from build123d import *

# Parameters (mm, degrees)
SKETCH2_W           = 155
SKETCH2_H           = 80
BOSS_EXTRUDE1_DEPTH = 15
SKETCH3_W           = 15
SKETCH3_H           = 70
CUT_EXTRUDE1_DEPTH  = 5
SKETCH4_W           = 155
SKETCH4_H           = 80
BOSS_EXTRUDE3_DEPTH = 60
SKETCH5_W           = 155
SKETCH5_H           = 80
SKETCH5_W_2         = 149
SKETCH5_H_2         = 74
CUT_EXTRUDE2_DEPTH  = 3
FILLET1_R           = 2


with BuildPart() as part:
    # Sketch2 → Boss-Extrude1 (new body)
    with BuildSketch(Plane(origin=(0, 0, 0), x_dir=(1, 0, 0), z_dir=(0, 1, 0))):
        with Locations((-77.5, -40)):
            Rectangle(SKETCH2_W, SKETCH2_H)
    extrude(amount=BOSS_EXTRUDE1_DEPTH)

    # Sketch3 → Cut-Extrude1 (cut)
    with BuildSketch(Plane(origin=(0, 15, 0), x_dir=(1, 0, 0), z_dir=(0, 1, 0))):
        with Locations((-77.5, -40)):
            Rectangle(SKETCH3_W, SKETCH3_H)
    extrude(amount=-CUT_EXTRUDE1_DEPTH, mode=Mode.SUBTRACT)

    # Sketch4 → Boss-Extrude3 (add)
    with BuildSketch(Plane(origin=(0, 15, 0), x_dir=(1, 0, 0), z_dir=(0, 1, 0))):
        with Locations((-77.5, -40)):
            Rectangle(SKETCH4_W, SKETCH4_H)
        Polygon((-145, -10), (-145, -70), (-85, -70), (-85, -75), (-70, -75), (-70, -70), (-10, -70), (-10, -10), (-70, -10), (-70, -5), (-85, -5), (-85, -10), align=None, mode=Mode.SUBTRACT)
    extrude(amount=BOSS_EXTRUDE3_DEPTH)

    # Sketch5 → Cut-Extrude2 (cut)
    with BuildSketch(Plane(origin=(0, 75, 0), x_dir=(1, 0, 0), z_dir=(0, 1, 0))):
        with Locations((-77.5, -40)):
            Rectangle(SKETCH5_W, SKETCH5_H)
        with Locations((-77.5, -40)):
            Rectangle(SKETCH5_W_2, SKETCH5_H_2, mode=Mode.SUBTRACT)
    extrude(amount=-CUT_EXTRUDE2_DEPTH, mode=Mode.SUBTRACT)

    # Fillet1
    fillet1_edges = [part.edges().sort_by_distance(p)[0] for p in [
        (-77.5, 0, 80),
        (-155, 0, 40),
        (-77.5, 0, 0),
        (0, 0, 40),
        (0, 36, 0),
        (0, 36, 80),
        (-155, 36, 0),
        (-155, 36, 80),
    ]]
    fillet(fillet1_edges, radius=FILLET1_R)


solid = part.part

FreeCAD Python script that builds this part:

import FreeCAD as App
import Part
import Sketcher
Q = App.Units.Quantity


def edges_at(feature, points):
    """Names of the edges that pass closest to the given points."""
    edges = feature.Shape.Edges
    near = lambda p: min(range(len(edges)), key=lambda i: edges[i].distToShape(Part.Vertex(*p))[0])
    return sorted({f"Edge{near(p) + 1}" for p in points})

doc = App.newDocument("Part")
params = doc.addObject("Spreadsheet::Sheet", "Params")
for row, (alias, value) in enumerate([
    ("sketch1_width", "155 mm"),
    ("sketch1_height", "80 mm"),
    ("pad1_length", "15 mm"),
    ("sketch2_width", "15 mm"),
    ("sketch2_height", "70 mm"),
    ("pocket1_length", "5 mm"),
    ("sketch3_width", "155 mm"),
    ("sketch3_width2", "60 mm"),
    ("sketch3_width3", "15 mm"),
    ("sketch3_height", "80 mm"),
    ("sketch3_height2", "5 mm"),
    ("pad2_length", "60 mm"),
    ("sketch4_width", "155 mm"),
    ("sketch4_width2", "149 mm"),
    ("sketch4_height", "80 mm"),
    ("sketch4_height2", "74 mm"),
    ("pocket2_length", "3 mm"),
    ("fillet_radius", "2 mm"),
], start=1):
    params.set(f"A{row}", alias)
    params.set(f"B{row}", "=" + value)
    params.setAlias(f"B{row}", alias)

body = doc.addObject("PartDesign::Body", "Body")

# Sketch on XZ plane
sketch1 = body.newObject("Sketcher::SketchObject", "Sketch")
sketch1.AttachmentSupport = (doc.getObject("XZ_Plane"), [""])
sketch1.MapMode = "FlatFace"
sketch1.addGeometry(Part.LineSegment(App.Vector(-155, 0, 0), App.Vector(-155, 80, 0)), False)
sketch1.addGeometry(Part.LineSegment(App.Vector(-155, 80, 0), App.Vector(0, 80, 0)), False)
sketch1.addGeometry(Part.LineSegment(App.Vector(0, 80, 0), App.Vector(0, 0, 0)), False)
sketch1.addGeometry(Part.LineSegment(App.Vector(0, 0, 0), App.Vector(-155, 0, 0)), False)
sketch1.addConstraint(Sketcher.Constraint("Coincident", 0, 2, 1, 1))
sketch1.addConstraint(Sketcher.Constraint("Coincident", 1, 2, 2, 1))
sketch1.addConstraint(Sketcher.Constraint("Coincident", 2, 2, 3, 1))
sketch1.addConstraint(Sketcher.Constraint("Coincident", 3, 2, 0, 1))
sketch1.addConstraint(Sketcher.Constraint("Vertical", 0))
sketch1.addConstraint(Sketcher.Constraint("Horizontal", 1))
sketch1.addConstraint(Sketcher.Constraint("Vertical", 2))
sketch1.addConstraint(Sketcher.Constraint("Horizontal", 3))
sketch1.addConstraint(Sketcher.Constraint("Coincident", 2, 2, -1, 1))
sketch1.addConstraint(Sketcher.Constraint("DistanceX", 1, 1, 1, 2, Q("155 mm")))
sketch1.addConstraint(Sketcher.Constraint("DistanceY", 0, 1, 0, 2, Q("80 mm")))
sketch1.setExpression("Constraints[9]", "Params.sketch1_width")
sketch1.setExpression("Constraints[10]", "Params.sketch1_height")
pad1 = body.newObject("PartDesign::Pad", "Pad")
pad1.Profile = sketch1
pad1.setExpression("Length", "Params.pad1_length")
pad1.Reversed = True

# Sketch on XZ plane
sketch2 = body.newObject("Sketcher::SketchObject", "Sketch001")
sketch2.AttachmentSupport = (doc.getObject("XZ_Plane"), [""])
sketch2.MapMode = "FlatFace"
sketch2.AttachmentOffset = App.Placement(App.Vector(0, 0, -15), App.Rotation())
sketch2.addGeometry(Part.LineSegment(App.Vector(-85, 5, 0), App.Vector(-85, 75, 0)), False)
sketch2.addGeometry(Part.LineSegment(App.Vector(-85, 75, 0), App.Vector(-70, 75, 0)), False)
sketch2.addGeometry(Part.LineSegment(App.Vector(-70, 75, 0), App.Vector(-70, 5, 0)), False)
sketch2.addGeometry(Part.LineSegment(App.Vector(-70, 5, 0), App.Vector(-85, 5, 0)), False)
sketch2.addConstraint(Sketcher.Constraint("Coincident", 0, 2, 1, 1))
sketch2.addConstraint(Sketcher.Constraint("Coincident", 1, 2, 2, 1))
sketch2.addConstraint(Sketcher.Constraint("Coincident", 2, 2, 3, 1))
sketch2.addConstraint(Sketcher.Constraint("Coincident", 3, 2, 0, 1))
sketch2.addConstraint(Sketcher.Constraint("Vertical", 0))
sketch2.addConstraint(Sketcher.Constraint("Horizontal", 1))
sketch2.addConstraint(Sketcher.Constraint("Vertical", 2))
sketch2.addConstraint(Sketcher.Constraint("Horizontal", 3))
sketch2.addConstraint(Sketcher.Constraint("DistanceX", 1, 1, 1, 2, Q("15 mm")))
sketch2.addConstraint(Sketcher.Constraint("DistanceY", 0, 1, 0, 2, Q("70 mm")))
sketch2.addConstraint(Sketcher.Constraint("DistanceX", 0, 2, -1, 1, Q("85 mm")))
sketch2.addConstraint(Sketcher.Constraint("DistanceY", -1, 1, 0, 2, Q("75 mm")))
sketch2.setExpression("Constraints[8]", "Params.sketch2_width")
sketch2.setExpression("Constraints[9]", "Params.sketch2_height")
pocket1 = body.newObject("PartDesign::Pocket", "Pocket")
pocket1.Profile = sketch2
pocket1.setExpression("Length", "Params.pocket1_length")
pocket1.Reversed = True

# Sketch on XZ plane
sketch3 = body.newObject("Sketcher::SketchObject", "Sketch002")
sketch3.AttachmentSupport = (doc.getObject("XZ_Plane"), [""])
sketch3.MapMode = "FlatFace"
sketch3.AttachmentOffset = App.Placement(App.Vector(0, 0, -15), App.Rotation())
sketch3.addGeometry(Part.LineSegment(App.Vector(-155, 0, 0), App.Vector(-155, 80, 0)), False)
sketch3.addGeometry(Part.LineSegment(App.Vector(-155, 80, 0), App.Vector(0, 80, 0)), False)
sketch3.addGeometry(Part.LineSegment(App.Vector(0, 80, 0), App.Vector(0, 0, 0)), False)
sketch3.addGeometry(Part.LineSegment(App.Vector(0, 0, 0), App.Vector(-155, 0, 0)), False)
sketch3.addGeometry(Part.LineSegment(App.Vector(-145, 70, 0), App.Vector(-145, 10, 0)), False)
sketch3.addGeometry(Part.LineSegment(App.Vector(-145, 10, 0), App.Vector(-85, 10, 0)), False)
sketch3.addGeometry(Part.LineSegment(App.Vector(-85, 10, 0), App.Vector(-85, 5, 0)), False)
sketch3.addGeometry(Part.LineSegment(App.Vector(-85, 5, 0), App.Vector(-70, 5, 0)), False)
sketch3.addGeometry(Part.LineSegment(App.Vector(-70, 5, 0), App.Vector(-70, 10, 0)), False)
sketch3.addGeometry(Part.LineSegment(App.Vector(-70, 10, 0), App.Vector(-10, 10, 0)), False)
sketch3.addGeometry(Part.LineSegment(App.Vector(-10, 10, 0), App.Vector(-10, 70, 0)), False)
sketch3.addGeometry(Part.LineSegment(App.Vector(-10, 70, 0), App.Vector(-70, 70, 0)), False)
sketch3.addGeometry(Part.LineSegment(App.Vector(-70, 70, 0), App.Vector(-70, 75, 0)), False)
sketch3.addGeometry(Part.LineSegment(App.Vector(-70, 75, 0), App.Vector(-85, 75, 0)), False)
sketch3.addGeometry(Part.LineSegment(App.Vector(-85, 75, 0), App.Vector(-85, 70, 0)), False)
sketch3.addGeometry(Part.LineSegment(App.Vector(-85, 70, 0), App.Vector(-145, 70, 0)), False)
sketch3.addConstraint(Sketcher.Constraint("Coincident", 0, 2, 1, 1))
sketch3.addConstraint(Sketcher.Constraint("Coincident", 1, 2, 2, 1))
sketch3.addConstraint(Sketcher.Constraint("Coincident", 2, 2, 3, 1))
sketch3.addConstraint(Sketcher.Constraint("Coincident", 3, 2, 0, 1))
sketch3.addConstraint(Sketcher.Constraint("Coincident", 4, 2, 5, 1))
sketch3.addConstraint(Sketcher.Constraint("Coincident", 5, 2, 6, 1))
sketch3.addConstraint(Sketcher.Constraint("Coincident", 6, 2, 7, 1))
sketch3.addConstraint(Sketcher.Constraint("Coincident", 7, 2, 8, 1))
sketch3.addConstraint(Sketcher.Constraint("Coincident", 8, 2, 9, 1))
sketch3.addConstraint(Sketcher.Constraint("Coincident", 9, 2, 10, 1))
sketch3.addConstraint(Sketcher.Constraint("Coincident", 10, 2, 11, 1))
sketch3.addConstraint(Sketcher.Constraint("Coincident", 11, 2, 12, 1))
sketch3.addConstraint(Sketcher.Constraint("Coincident", 12, 2, 13, 1))
sketch3.addConstraint(Sketcher.Constraint("Coincident", 13, 2, 14, 1))
sketch3.addConstraint(Sketcher.Constraint("Coincident", 14, 2, 15, 1))
sketch3.addConstraint(Sketcher.Constraint("Coincident", 15, 2, 4, 1))
sketch3.addConstraint(Sketcher.Constraint("Vertical", 0))
sketch3.addConstraint(Sketcher.Constraint("Horizontal", 1))
sketch3.addConstraint(Sketcher.Constraint("Vertical", 2))
sketch3.addConstraint(Sketcher.Constraint("Horizontal", 3))
sketch3.addConstraint(Sketcher.Constraint("Vertical", 4))
sketch3.addConstraint(Sketcher.Constraint("Horizontal", 5))
sketch3.addConstraint(Sketcher.Constraint("Vertical", 6))
sketch3.addConstraint(Sketcher.Constraint("Horizontal", 7))
sketch3.addConstraint(Sketcher.Constraint("Vertical", 8))
sketch3.addConstraint(Sketcher.Constraint("Horizontal", 9))
sketch3.addConstraint(Sketcher.Constraint("Vertical", 10))
sketch3.addConstraint(Sketcher.Constraint("Horizontal", 11))
sketch3.addConstraint(Sketcher.Constraint("Vertical", 12))
sketch3.addConstraint(Sketcher.Constraint("Horizontal", 13))
sketch3.addConstraint(Sketcher.Constraint("Vertical", 14))
sketch3.addConstraint(Sketcher.Constraint("Horizontal", 15))
sketch3.addConstraint(Sketcher.Constraint("Coincident", 2, 2, -1, 1))
sketch3.addConstraint(Sketcher.Constraint("Horizontal", 5, 2, 8, 2))
sketch3.addConstraint(Sketcher.Constraint("Horizontal", 11, 2, 14, 2))
sketch3.addConstraint(Sketcher.Constraint("Vertical", 8, 2, 11, 2))
sketch3.addConstraint(Sketcher.Constraint("Vertical", 6, 2, 13, 2))
sketch3.addConstraint(Sketcher.Constraint("Equal", 5, 9))
sketch3.addConstraint(Sketcher.Constraint("Equal", 15, 4))
sketch3.addConstraint(Sketcher.Constraint("Equal", 8, 12))
sketch3.addConstraint(Sketcher.Constraint("DistanceX", 1, 1, 1, 2, Q("155 mm")))
sketch3.addConstraint(Sketcher.Constraint("DistanceX", 5, 1, 5, 2, Q("60 mm")))
sketch3.addConstraint(Sketcher.Constraint("DistanceX", 7, 1, 7, 2, Q("15 mm")))
sketch3.addConstraint(Sketcher.Constraint("DistanceY", 0, 1, 0, 2, Q("80 mm")))
sketch3.addConstraint(Sketcher.Constraint("DistanceY", 6, 2, 6, 1, Q("5 mm")))
sketch3.addConstraint(Sketcher.Constraint("DistanceX", 4, 2, -1, 1, Q("145 mm")))
sketch3.addConstraint(Sketcher.Constraint("DistanceY", -1, 1, 4, 2, Q("10 mm")))
sketch3.setExpression("Constraints[40]", "Params.sketch3_width")
sketch3.setExpression("Constraints[41]", "Params.sketch3_width2")
sketch3.setExpression("Constraints[42]", "Params.sketch3_width3")
sketch3.setExpression("Constraints[43]", "Params.sketch3_height")
sketch3.setExpression("Constraints[44]", "Params.sketch3_height2")
pad2 = body.newObject("PartDesign::Pad", "Pad001")
pad2.Profile = sketch3
pad2.setExpression("Length", "Params.pad2_length")
pad2.Reversed = True

# Sketch on XZ plane
sketch4 = body.newObject("Sketcher::SketchObject", "Sketch003")
sketch4.AttachmentSupport = (doc.getObject("XZ_Plane"), [""])
sketch4.MapMode = "FlatFace"
sketch4.AttachmentOffset = App.Placement(App.Vector(0, 0, -75), App.Rotation())
sketch4.addGeometry(Part.LineSegment(App.Vector(-155, 0, 0), App.Vector(-155, 80, 0)), False)
sketch4.addGeometry(Part.LineSegment(App.Vector(-155, 80, 0), App.Vector(0, 80, 0)), False)
sketch4.addGeometry(Part.LineSegment(App.Vector(0, 80, 0), App.Vector(0, 0, 0)), False)
sketch4.addGeometry(Part.LineSegment(App.Vector(0, 0, 0), App.Vector(-155, 0, 0)), False)
sketch4.addGeometry(Part.LineSegment(App.Vector(-3, 77, 0), App.Vector(-152, 77, 0)), False)
sketch4.addGeometry(Part.LineSegment(App.Vector(-152, 77, 0), App.Vector(-152, 3, 0)), False)
sketch4.addGeometry(Part.LineSegment(App.Vector(-152, 3, 0), App.Vector(-3, 3, 0)), False)
sketch4.addGeometry(Part.LineSegment(App.Vector(-3, 3, 0), App.Vector(-3, 77, 0)), False)
sketch4.addConstraint(Sketcher.Constraint("Coincident", 0, 2, 1, 1))
sketch4.addConstraint(Sketcher.Constraint("Coincident", 1, 2, 2, 1))
sketch4.addConstraint(Sketcher.Constraint("Coincident", 2, 2, 3, 1))
sketch4.addConstraint(Sketcher.Constraint("Coincident", 3, 2, 0, 1))
sketch4.addConstraint(Sketcher.Constraint("Coincident", 4, 2, 5, 1))
sketch4.addConstraint(Sketcher.Constraint("Coincident", 5, 2, 6, 1))
sketch4.addConstraint(Sketcher.Constraint("Coincident", 6, 2, 7, 1))
sketch4.addConstraint(Sketcher.Constraint("Coincident", 7, 2, 4, 1))
sketch4.addConstraint(Sketcher.Constraint("Vertical", 0))
sketch4.addConstraint(Sketcher.Constraint("Horizontal", 1))
sketch4.addConstraint(Sketcher.Constraint("Vertical", 2))
sketch4.addConstraint(Sketcher.Constraint("Horizontal", 3))
sketch4.addConstraint(Sketcher.Constraint("Horizontal", 4))
sketch4.addConstraint(Sketcher.Constraint("Vertical", 5))
sketch4.addConstraint(Sketcher.Constraint("Horizontal", 6))
sketch4.addConstraint(Sketcher.Constraint("Vertical", 7))
sketch4.addConstraint(Sketcher.Constraint("Coincident", 2, 2, -1, 1))
sketch4.addConstraint(Sketcher.Constraint("DistanceX", 1, 1, 1, 2, Q("155 mm")))
sketch4.addConstraint(Sketcher.Constraint("DistanceX", 4, 2, 4, 1, Q("149 mm")))
sketch4.addConstraint(Sketcher.Constraint("DistanceY", 0, 1, 0, 2, Q("80 mm")))
sketch4.addConstraint(Sketcher.Constraint("DistanceY", 5, 2, 5, 1, Q("74 mm")))
sketch4.addConstraint(Sketcher.Constraint("DistanceX", 4, 2, -1, 1, Q("152 mm")))
sketch4.addConstraint(Sketcher.Constraint("DistanceY", -1, 1, 4, 2, Q("77 mm")))
sketch4.setExpression("Constraints[17]", "Params.sketch4_width")
sketch4.setExpression("Constraints[18]", "Params.sketch4_width2")
sketch4.setExpression("Constraints[19]", "Params.sketch4_height")
sketch4.setExpression("Constraints[20]", "Params.sketch4_height2")
pocket2 = body.newObject("PartDesign::Pocket", "Pocket001")
pocket2.Profile = sketch4
pocket2.setExpression("Length", "Params.pocket2_length")
pocket2.Reversed = True
doc.recompute()

fillet = body.newObject("PartDesign::Fillet", "Fillet")
fillet.Base = (pocket2, edges_at(pocket2, [
    (-77.5, 0, 80),
    (-155, 0, 40),
    (-77.5, 0, 0),
    (0, 0, 40),
    (0, 36, 0),
    (0, 36, 80),
    (-155, 36, 0),
    (-155, 36, 80),
]))
fillet.setExpression("Radius", "Params.fillet_radius")

doc.recompute()
